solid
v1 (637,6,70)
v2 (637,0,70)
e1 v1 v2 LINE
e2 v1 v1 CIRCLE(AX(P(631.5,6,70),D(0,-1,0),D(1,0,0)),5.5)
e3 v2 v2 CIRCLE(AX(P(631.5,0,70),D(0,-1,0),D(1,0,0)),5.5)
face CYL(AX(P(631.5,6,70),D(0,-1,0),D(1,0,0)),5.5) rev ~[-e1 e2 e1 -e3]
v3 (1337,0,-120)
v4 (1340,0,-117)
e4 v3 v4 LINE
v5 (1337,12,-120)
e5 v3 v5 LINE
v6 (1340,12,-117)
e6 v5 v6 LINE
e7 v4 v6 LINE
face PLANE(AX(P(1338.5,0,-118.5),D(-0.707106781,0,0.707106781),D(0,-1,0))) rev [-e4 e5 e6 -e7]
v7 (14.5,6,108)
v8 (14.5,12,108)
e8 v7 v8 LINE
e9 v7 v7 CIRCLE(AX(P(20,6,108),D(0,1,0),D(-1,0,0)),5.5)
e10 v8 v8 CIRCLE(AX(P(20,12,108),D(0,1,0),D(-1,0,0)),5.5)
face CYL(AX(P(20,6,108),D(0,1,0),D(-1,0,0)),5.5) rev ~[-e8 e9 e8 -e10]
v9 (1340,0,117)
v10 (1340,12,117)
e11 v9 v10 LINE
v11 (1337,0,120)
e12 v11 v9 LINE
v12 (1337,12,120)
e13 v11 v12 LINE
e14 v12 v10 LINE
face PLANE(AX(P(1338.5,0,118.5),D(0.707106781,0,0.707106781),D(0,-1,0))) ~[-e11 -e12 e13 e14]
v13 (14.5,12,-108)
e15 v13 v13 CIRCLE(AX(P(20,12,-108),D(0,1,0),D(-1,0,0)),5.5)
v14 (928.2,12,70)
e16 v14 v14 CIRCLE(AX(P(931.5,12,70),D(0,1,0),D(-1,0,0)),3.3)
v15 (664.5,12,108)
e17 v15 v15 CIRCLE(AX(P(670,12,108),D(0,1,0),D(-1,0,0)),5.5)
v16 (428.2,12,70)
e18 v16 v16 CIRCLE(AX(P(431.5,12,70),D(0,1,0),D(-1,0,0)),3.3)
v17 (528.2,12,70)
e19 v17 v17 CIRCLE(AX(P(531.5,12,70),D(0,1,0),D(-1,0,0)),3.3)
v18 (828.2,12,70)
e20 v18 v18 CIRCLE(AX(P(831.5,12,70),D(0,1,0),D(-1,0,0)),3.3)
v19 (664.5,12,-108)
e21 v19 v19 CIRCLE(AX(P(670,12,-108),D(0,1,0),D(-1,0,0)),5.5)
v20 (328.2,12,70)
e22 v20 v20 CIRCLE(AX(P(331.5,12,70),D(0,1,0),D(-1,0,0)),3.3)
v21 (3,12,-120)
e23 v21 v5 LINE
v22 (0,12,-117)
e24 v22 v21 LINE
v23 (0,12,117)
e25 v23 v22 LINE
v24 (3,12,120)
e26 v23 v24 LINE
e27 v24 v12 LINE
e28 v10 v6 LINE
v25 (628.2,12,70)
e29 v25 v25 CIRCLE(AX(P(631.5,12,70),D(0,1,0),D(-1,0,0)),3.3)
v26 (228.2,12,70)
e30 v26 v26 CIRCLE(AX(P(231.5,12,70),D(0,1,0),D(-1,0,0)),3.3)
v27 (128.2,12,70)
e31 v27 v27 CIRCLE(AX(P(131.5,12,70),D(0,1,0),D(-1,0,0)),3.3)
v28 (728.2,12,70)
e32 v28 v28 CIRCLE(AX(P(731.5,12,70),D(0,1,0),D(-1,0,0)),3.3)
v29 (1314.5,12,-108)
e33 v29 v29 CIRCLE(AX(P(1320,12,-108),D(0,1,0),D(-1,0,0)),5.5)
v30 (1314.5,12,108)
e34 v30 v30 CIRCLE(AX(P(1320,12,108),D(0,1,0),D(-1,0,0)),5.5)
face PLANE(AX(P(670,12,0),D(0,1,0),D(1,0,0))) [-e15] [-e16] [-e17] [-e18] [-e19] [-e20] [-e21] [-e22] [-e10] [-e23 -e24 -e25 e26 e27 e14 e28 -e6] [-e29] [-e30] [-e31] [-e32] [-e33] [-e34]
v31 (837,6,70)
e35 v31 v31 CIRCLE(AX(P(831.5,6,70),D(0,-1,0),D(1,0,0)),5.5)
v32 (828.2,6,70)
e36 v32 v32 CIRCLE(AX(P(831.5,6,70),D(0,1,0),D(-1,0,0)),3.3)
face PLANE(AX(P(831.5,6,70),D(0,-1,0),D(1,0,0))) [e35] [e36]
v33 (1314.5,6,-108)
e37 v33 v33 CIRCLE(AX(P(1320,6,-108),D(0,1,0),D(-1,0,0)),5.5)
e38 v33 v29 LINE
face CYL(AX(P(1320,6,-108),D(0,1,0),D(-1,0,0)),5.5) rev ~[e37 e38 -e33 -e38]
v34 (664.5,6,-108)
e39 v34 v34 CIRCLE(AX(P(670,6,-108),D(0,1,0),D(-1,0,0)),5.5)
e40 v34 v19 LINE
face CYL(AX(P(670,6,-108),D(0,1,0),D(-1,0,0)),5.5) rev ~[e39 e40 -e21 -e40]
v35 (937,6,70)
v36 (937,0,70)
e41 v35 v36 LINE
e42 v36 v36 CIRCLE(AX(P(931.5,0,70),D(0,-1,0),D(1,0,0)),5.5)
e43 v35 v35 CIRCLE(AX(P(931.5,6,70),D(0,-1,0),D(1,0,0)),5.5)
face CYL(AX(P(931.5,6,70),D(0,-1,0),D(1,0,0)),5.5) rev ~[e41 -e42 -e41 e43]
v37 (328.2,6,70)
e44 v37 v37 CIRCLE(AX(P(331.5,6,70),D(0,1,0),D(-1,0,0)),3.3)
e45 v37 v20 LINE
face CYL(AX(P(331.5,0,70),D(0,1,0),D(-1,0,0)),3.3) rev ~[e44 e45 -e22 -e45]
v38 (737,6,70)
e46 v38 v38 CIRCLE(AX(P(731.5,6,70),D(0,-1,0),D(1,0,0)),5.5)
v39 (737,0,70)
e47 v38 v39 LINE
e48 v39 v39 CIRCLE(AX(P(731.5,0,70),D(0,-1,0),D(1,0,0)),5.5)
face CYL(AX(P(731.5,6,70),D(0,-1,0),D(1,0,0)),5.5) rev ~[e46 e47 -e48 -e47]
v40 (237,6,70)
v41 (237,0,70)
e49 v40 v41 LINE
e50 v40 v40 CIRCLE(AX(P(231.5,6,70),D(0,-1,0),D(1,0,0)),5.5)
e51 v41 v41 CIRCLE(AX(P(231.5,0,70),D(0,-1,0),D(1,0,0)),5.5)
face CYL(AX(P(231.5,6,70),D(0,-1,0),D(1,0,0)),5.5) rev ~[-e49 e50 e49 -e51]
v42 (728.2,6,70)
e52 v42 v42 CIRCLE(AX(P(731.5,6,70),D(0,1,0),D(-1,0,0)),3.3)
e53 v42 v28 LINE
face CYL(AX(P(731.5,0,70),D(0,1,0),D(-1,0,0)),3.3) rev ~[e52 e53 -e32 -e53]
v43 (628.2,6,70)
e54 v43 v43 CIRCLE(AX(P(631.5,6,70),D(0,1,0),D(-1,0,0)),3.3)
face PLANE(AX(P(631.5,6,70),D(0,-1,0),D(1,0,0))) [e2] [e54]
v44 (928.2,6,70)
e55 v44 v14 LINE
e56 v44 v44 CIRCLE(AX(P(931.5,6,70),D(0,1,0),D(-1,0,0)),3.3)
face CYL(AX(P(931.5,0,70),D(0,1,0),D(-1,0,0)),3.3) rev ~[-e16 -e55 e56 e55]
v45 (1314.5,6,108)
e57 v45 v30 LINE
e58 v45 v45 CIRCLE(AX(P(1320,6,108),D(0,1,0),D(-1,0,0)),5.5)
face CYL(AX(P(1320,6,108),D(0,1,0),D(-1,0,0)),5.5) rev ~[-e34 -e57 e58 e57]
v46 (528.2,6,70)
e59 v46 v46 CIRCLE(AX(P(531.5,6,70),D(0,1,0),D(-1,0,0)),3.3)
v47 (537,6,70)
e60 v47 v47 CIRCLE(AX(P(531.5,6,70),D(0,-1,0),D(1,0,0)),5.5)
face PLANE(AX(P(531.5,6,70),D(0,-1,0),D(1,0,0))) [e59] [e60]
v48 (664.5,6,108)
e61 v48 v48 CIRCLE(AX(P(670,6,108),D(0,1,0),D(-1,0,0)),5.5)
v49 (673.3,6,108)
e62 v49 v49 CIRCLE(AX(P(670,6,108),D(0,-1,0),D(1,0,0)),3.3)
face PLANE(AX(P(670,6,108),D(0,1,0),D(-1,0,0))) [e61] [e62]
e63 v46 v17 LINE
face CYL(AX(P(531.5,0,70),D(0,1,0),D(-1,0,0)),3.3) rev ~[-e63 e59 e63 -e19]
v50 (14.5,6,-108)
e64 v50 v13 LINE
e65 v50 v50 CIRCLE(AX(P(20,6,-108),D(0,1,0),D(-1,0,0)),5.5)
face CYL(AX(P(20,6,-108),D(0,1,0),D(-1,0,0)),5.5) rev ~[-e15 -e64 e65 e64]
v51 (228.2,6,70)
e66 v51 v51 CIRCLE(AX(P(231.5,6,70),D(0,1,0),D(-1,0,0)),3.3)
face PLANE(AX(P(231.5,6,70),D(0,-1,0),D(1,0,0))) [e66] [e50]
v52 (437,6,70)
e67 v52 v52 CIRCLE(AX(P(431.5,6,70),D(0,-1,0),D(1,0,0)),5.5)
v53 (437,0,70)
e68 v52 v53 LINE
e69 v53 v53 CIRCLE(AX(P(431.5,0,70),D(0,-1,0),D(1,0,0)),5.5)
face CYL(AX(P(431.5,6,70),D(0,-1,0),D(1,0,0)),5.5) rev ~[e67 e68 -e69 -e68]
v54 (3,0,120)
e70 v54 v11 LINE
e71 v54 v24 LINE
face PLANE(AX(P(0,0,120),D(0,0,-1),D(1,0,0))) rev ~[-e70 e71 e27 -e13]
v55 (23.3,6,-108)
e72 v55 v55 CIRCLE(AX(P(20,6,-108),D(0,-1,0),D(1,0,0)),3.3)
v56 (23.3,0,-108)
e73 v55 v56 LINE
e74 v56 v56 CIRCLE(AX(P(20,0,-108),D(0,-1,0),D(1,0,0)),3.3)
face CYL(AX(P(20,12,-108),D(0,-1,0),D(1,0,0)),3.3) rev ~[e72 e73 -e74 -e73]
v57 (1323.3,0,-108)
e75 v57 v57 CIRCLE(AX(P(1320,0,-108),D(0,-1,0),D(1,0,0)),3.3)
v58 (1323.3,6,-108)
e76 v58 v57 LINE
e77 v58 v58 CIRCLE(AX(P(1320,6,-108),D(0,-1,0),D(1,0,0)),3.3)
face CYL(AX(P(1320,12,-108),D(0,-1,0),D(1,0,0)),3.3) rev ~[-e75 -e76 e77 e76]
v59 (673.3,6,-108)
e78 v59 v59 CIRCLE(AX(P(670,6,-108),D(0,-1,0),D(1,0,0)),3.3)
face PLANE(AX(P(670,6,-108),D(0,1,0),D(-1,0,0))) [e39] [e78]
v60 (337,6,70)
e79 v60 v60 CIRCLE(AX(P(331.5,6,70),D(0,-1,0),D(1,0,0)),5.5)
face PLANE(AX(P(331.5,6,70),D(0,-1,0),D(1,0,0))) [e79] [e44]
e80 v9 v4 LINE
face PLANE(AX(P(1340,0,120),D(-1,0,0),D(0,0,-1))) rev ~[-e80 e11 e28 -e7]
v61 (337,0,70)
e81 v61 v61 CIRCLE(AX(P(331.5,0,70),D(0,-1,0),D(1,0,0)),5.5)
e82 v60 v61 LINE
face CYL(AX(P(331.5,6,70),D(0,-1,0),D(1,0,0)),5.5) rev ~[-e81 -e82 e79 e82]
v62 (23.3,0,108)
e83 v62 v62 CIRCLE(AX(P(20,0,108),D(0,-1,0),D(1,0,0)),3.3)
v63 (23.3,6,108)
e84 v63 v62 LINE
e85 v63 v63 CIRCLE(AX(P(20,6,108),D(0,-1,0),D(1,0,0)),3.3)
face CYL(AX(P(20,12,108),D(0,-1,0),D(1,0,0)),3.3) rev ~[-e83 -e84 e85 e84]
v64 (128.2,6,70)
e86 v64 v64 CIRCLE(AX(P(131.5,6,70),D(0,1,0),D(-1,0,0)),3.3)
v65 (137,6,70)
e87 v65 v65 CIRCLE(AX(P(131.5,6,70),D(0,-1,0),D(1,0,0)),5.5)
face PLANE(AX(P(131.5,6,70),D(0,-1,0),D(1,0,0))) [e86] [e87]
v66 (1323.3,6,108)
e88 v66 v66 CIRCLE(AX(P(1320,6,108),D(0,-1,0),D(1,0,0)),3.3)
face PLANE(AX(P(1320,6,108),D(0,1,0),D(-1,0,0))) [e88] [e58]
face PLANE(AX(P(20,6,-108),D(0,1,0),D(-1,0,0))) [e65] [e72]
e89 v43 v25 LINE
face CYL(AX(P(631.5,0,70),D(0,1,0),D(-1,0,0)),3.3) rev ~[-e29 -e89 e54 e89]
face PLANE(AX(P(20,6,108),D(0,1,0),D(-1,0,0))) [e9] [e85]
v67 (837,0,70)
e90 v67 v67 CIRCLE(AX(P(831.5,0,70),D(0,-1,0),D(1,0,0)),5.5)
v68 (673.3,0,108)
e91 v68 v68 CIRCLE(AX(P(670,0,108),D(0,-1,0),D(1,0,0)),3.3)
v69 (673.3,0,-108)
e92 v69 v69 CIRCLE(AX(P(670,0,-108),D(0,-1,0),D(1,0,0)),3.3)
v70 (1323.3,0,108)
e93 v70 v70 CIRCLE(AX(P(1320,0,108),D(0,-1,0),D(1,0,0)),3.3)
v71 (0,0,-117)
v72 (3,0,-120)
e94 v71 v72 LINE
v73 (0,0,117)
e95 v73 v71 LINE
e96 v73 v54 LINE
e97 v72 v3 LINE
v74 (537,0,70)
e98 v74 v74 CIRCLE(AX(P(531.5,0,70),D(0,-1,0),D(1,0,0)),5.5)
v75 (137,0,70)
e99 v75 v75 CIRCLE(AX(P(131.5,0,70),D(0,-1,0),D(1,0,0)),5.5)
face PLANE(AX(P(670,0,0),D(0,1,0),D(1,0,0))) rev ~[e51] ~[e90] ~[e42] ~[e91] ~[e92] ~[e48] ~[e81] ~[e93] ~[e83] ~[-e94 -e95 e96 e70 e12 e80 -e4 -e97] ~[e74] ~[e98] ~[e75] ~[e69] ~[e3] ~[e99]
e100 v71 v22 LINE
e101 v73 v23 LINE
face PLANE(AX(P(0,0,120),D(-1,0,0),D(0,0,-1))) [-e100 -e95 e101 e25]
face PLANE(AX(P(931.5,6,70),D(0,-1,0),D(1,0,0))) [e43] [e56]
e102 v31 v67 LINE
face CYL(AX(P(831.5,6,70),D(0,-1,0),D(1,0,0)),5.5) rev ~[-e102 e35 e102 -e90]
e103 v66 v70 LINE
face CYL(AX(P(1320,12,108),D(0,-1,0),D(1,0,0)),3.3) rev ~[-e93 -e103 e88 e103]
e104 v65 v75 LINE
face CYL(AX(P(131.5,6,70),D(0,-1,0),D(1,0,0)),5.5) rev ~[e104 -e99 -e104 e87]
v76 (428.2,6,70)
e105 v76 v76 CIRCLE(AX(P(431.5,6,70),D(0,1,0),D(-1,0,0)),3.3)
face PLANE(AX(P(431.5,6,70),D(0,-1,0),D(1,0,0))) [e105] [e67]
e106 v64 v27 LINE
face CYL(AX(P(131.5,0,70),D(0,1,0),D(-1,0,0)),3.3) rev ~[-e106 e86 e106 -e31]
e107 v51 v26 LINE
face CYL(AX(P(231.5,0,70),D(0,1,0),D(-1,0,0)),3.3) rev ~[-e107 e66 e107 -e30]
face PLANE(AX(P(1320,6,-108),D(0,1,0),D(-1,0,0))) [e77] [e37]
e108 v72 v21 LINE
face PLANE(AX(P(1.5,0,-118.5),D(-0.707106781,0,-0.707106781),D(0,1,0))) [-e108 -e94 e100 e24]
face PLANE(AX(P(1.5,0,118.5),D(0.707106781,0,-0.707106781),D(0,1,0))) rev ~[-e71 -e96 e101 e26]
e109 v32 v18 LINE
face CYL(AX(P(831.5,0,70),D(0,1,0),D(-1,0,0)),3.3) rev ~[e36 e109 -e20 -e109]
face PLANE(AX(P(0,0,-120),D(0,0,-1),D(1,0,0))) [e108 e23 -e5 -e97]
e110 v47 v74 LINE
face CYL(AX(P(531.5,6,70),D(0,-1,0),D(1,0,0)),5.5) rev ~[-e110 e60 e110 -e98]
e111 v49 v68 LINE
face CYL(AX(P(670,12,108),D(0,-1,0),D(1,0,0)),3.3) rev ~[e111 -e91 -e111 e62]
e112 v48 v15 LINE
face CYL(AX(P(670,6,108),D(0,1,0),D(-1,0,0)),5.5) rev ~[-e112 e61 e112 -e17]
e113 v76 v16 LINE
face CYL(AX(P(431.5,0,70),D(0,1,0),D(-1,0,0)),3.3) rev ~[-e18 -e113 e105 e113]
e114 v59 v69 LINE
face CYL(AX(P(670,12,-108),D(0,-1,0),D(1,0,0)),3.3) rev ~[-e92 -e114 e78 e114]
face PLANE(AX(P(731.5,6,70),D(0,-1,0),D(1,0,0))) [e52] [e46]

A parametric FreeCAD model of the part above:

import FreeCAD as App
import Part
import Sketcher

V = App.Vector
Q = App.Units.Quantity


def edges_at(feature, points):
    """Names of the edges that pass closest to the given points."""
    edges = feature.Shape.Edges
    near = lambda p: min(range(len(edges)), key=lambda i: edges[i].distToShape(Part.Vertex(*p))[0])
    return sorted({f"Edge{near(p) + 1}" for p in points})


def add_polygon(sketch, points):
    """Adds a closed chain of lines whose ends are joined by coincident constraints."""
    first, n = sketch.GeometryCount, len(points)
    for a, b in zip(points, points[1:] + points[:1]):
        sketch.addGeometry(Part.LineSegment(App.Vector(*a, 0), App.Vector(*b, 0)), False)
    for i in range(n):
        sketch.addConstraint(Sketcher.Constraint("Coincident", first + i, 2, first + (i + 1) % n, 1))

doc = App.newDocument("Part")
body = doc.addObject("PartDesign::Body", "Body")

sketch1 = body.newObject("Sketcher::SketchObject", "Sketch")
sketch1.AttachmentSupport = (doc.getObject("XZ_Plane"), [""])
sketch1.MapMode = "FlatFace"
add_polygon(sketch1, [(0, -120), (0, 120), (1340, 120), (1340, -120)])
sketch1.addConstraint(Sketcher.Constraint("Vertical", 0))
sketch1.addConstraint(Sketcher.Constraint("Horizontal", 1))
sketch1.addConstraint(Sketcher.Constraint("Vertical", 2))
sketch1.addConstraint(Sketcher.Constraint("Horizontal", 3))
sketch1.addConstraint(Sketcher.Constraint("Symmetric", 0, 2, 3, 2, -1, 1))
sketch1.addConstraint(Sketcher.Constraint("DistanceX", 1, 1, 1, 2, Q("1340 mm")))
sketch1.addConstraint(Sketcher.Constraint("DistanceY", 0, 1, 0, 2, Q("240 mm")))
pad1 = body.newObject("PartDesign::Pad", "Pad")
pad1.Profile = sketch1
pad1.Length = 12
pad1.Reversed = True

sketch2 = body.newObject("Sketcher::SketchObject", "Sketch001")
sketch2.AttachmentSupport = (doc.getObject("XZ_Plane"), [""])
sketch2.MapMode = "FlatFace"
sketch2.AttachmentOffset = App.Placement(V(0, 0, -12), App.Rotation())
sketch2.addGeometry(Part.Circle(V(20, 108, 0), V(0, 0, 1), 3.3), False)
sketch2.addGeometry(Part.Circle(V(20, -108, 0), V(0, 0, 1), 3.3), False)
sketch2.addGeometry(Part.Circle(V(670, 108, 0), V(0, 0, 1), 3.3), False)
sketch2.addGeometry(Part.Circle(V(670, -108, 0), V(0, 0, 1), 3.3), False)
sketch2.addGeometry(Part.Circle(V(1320, 108, 0), V(0, 0, 1), 3.3), False)
sketch2.addGeometry(Part.Circle(V(1320, -108, 0), V(0, 0, 1), 3.3), False)
sketch2.addConstraint(Sketcher.Constraint("Equal", 0, 1))
sketch2.addConstraint(Sketcher.Constraint("Equal", 1, 2))
sketch2.addConstraint(Sketcher.Constraint("Equal", 2, 3))
sketch2.addConstraint(Sketcher.Constraint("Equal", 3, 4))
sketch2.addConstraint(Sketcher.Constraint("Equal", 4, 5))
sketch2.addConstraint(Sketcher.Constraint("Symmetric", 0, 3, 1, 3, -1))
sketch2.addConstraint(Sketcher.Constraint("Symmetric", 2, 3, 3, 3, -1))
sketch2.addConstraint(Sketcher.Constraint("Symmetric", 4, 3, 5, 3, -1))
sketch2.addConstraint(Sketcher.Constraint("Horizontal", 0, 3, 2, 3))
sketch2.addConstraint(Sketcher.Constraint("Horizontal", 2, 3, 4, 3))
sketch2.addConstraint(Sketcher.Constraint("Diameter", 0, Q("6.6 mm")))
sketch2.addConstraint(Sketcher.Constraint("DistanceX", -1, 1, 0, 3, Q("20 mm")))
sketch2.addConstraint(Sketcher.Constraint("DistanceY", -1, 1, 0, 3, Q("108 mm")))
sketch2.addConstraint(Sketcher.Constraint("DistanceX", -1, 1, 2, 3, Q("670 mm")))
sketch2.addConstraint(Sketcher.Constraint("DistanceX", -1, 1, 4, 3, Q("1320 mm")))
doc.recompute()
hole = body.newObject("PartDesign::Hole", "Hole")
hole.Profile = sketch2
hole.ThreadType = "None"
hole.Diameter = 6.6
hole.DepthType = "ThroughAll"
hole.HoleCutType = "Counterbore"
hole.HoleCutDiameter = 11
hole.HoleCutDepth = 6
hole.Reversed = True

sketch3 = body.newObject("Sketcher::SketchObject", "Sketch002")
sketch3.AttachmentSupport = (doc.getObject("XZ_Plane"), [""])
sketch3.MapMode = "FlatFace"
sketch3.addGeometry(Part.Circle(V(131.5, 70, 0), V(0, 0, 1), 3.3), False)
sketch3.addGeometry(Part.Circle(V(231.5, 70, 0), V(0, 0, 1), 3.3), False)
sketch3.addGeometry(Part.Circle(V(331.5, 70, 0), V(0, 0, 1), 3.3), False)
sketch3.addGeometry(Part.Circle(V(431.5, 70, 0), V(0, 0, 1), 3.3), False)
sketch3.addGeometry(Part.Circle(V(531.5, 70, 0), V(0, 0, 1), 3.3), False)
sketch3.addGeometry(Part.Circle(V(631.5, 70, 0), V(0, 0, 1), 3.3), False)
sketch3.addGeometry(Part.Circle(V(731.5, 70, 0), V(0, 0, 1), 3.3), False)
sketch3.addGeometry(Part.Circle(V(831.5, 70, 0), V(0, 0, 1), 3.3), False)
sketch3.addGeometry(Part.Circle(V(931.5, 70, 0), V(0, 0, 1), 3.3), False)
sketch3.addConstraint(Sketcher.Constraint("Equal", 0, 1))
sketch3.addConstraint(Sketcher.Constraint("Equal", 1, 2))
sketch3.addConstraint(Sketcher.Constraint("Equal", 2, 3))
sketch3.addConstraint(Sketcher.Constraint("Equal", 3, 4))
sketch3.addConstraint(Sketcher.Constraint("Equal", 4, 5))
sketch3.addConstraint(Sketcher.Constraint("Equal", 5, 6))
sketch3.addConstraint(Sketcher.Constraint("Equal", 6, 7))
sketch3.addConstraint(Sketcher.Constraint("Equal", 7, 8))
sketch3.addConstraint(Sketcher.Constraint("Horizontal", 0, 3, 1, 3))
sketch3.addConstraint(Sketcher.Constraint("Horizontal", 1, 3, 2, 3))
sketch3.addConstraint(Sketcher.Constraint("Horizontal", 2, 3, 3, 3))
sketch3.addConstraint(Sketcher.Constraint("Horizontal", 3, 3, 4, 3))
sketch3.addConstraint(Sketcher.Constraint("Horizontal", 4, 3, 5, 3))
sketch3.addConstraint(Sketcher.Constraint("Horizontal", 5, 3, 6, 3))
sketch3.addConstraint(Sketcher.Constraint("Horizontal", 6, 3, 7, 3))
sketch3.addConstraint(Sketcher.Constraint("Horizontal", 7, 3, 8, 3))
sketch3.addConstraint(Sketcher.Constraint("Diameter", 0, Q("6.6 mm")))
sketch3.addConstraint(Sketcher.Constraint("DistanceY", -1, 1, 0, 3, Q("70 mm")))
sketch3.addConstraint(Sketcher.Constraint("DistanceX", 0, 3, 1, 3, Q("100 mm")))
sketch3.addConstraint(Sketcher.Constraint("DistanceX", 1, 3, 2, 3, Q("100 mm")))
sketch3.addConstraint(Sketcher.Constraint("DistanceX", 2, 3, 3, 3, Q("100 mm")))
sketch3.addConstraint(Sketcher.Constraint("DistanceX", 3, 3, 4, 3, Q("100 mm")))
sketch3.addConstraint(Sketcher.Constraint("DistanceX", 4, 3, 5, 3, Q("100 mm")))
sketch3.addConstraint(Sketcher.Constraint("DistanceX", 5, 3, 6, 3, Q("100 mm")))
sketch3.addConstraint(Sketcher.Constraint("DistanceX", 6, 3, 7, 3, Q("100 mm")))
sketch3.addConstraint(Sketcher.Constraint("DistanceX", 7, 3, 8, 3, Q("100 mm")))
sketch3.addConstraint(Sketcher.Constraint("DistanceX", -1, 1, 0, 3, Q("131.5 mm")))
doc.recompute()
hole2 = body.newObject("PartDesign::Hole", "Hole001")
hole2.Profile = sketch3
hole2.ThreadType = "None"
hole2.Diameter = 6.6
hole2.DepthType = "ThroughAll"
hole2.HoleCutType = "Counterbore"
hole2.HoleCutDiameter = 11
hole2.HoleCutDepth = 6
doc.recompute()

chamfer = body.newObject("PartDesign::Chamfer", "Chamfer")
chamfer.Base = (hole2, edges_at(hole2, [
    (0, 6, -120),
    (1340, 6, -120),
    (1340, 6, 120),
    (0, 6, 120),
]))
chamfer.Size = 3

doc.recompute()
